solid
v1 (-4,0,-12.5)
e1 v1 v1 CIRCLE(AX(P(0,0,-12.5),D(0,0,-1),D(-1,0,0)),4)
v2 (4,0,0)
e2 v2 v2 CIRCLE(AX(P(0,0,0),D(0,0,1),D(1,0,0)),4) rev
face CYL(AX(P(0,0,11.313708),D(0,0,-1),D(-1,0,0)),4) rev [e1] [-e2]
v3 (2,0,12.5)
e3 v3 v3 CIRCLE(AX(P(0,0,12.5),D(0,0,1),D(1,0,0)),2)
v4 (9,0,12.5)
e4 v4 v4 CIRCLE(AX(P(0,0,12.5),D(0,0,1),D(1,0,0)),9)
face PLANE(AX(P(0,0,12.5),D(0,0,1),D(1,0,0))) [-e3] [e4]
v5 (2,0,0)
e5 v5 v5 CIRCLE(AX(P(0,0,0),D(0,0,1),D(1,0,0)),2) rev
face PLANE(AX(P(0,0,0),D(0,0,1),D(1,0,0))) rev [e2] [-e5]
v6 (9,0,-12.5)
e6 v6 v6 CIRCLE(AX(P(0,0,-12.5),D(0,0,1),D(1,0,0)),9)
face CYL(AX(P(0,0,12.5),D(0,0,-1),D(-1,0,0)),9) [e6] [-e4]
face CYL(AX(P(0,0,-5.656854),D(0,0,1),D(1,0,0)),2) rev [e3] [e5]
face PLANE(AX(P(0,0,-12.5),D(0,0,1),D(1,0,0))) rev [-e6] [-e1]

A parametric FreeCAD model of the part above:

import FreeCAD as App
import Part
import Sketcher
from FreeCAD import Vector
Q = App.Units.Quantity

doc = App.newDocument("Part")
body = doc.addObject("PartDesign::Body", "Body")

# Sketch on XY plane
sketch1 = doc.addObject("Sketcher::SketchObject", "Sketch")
body.addObject(sketch1)
sketch1.AttachmentSupport = (doc.XY_Plane, [""])
sketch1.MapMode = "FlatFace"
sketch1.addGeometry(Part.Circle(Vector(0, 0, 0), Vector(0, 0, 1), 9), False)
sketch1.addConstraint(Sketcher.Constraint("Coincident", 0, 3, -1, 1))
sketch1.addConstraint(Sketcher.Constraint("Diameter", 0, Q("18 mm")))
pad1 = doc.addObject("PartDesign::Pad", "Pad")
body.addObject(pad1)
pad1.Profile = sketch1
pad1.Length = 25
pad1.Midplane = True

# Sketch on XY plane
sketch2 = doc.addObject("Sketcher::SketchObject", "Sketch001")
body.addObject(sketch2)
sketch2.AttachmentSupport = (doc.XY_Plane, [""])
sketch2.MapMode = "FlatFace"
sketch2.addGeometry(Part.Circle(Vector(0, 0, 0), Vector(0, 0, 1), 2), False)
sketch2.addConstraint(Sketcher.Constraint("Coincident", 0, 3, -1, 1))
sketch2.addConstraint(Sketcher.Constraint("Diameter", 0, Q("4 mm")))
pocket1 = doc.addObject("PartDesign::Pocket", "Pocket")
body.addObject(pocket1)
pocket1.Profile = sketch2
pocket1.Length = 12.5
pocket1.Reversed = True

# Sketch on XY plane
sketch3 = doc.addObject("Sketcher::SketchObject", "Sketch002")
body.addObject(sketch3)
sketch3.AttachmentSupport = (doc.XY_Plane, [""])
sketch3.MapMode = "FlatFace"
sketch3.addGeometry(Part.Circle(Vector(0, 0, 0), Vector(0, 0, 1), 4), False)
sketch3.addConstraint(Sketcher.Constraint("Coincident", 0, 3, -1, 1))
sketch3.addConstraint(Sketcher.Constraint("Diameter", 0, Q("8 mm")))
pocket2 = doc.addObject("PartDesign::Pocket", "Pocket001")
body.addObject(pocket2)
pocket2.Profile = sketch3
pocket2.Length = 12.5

doc.recompute()
